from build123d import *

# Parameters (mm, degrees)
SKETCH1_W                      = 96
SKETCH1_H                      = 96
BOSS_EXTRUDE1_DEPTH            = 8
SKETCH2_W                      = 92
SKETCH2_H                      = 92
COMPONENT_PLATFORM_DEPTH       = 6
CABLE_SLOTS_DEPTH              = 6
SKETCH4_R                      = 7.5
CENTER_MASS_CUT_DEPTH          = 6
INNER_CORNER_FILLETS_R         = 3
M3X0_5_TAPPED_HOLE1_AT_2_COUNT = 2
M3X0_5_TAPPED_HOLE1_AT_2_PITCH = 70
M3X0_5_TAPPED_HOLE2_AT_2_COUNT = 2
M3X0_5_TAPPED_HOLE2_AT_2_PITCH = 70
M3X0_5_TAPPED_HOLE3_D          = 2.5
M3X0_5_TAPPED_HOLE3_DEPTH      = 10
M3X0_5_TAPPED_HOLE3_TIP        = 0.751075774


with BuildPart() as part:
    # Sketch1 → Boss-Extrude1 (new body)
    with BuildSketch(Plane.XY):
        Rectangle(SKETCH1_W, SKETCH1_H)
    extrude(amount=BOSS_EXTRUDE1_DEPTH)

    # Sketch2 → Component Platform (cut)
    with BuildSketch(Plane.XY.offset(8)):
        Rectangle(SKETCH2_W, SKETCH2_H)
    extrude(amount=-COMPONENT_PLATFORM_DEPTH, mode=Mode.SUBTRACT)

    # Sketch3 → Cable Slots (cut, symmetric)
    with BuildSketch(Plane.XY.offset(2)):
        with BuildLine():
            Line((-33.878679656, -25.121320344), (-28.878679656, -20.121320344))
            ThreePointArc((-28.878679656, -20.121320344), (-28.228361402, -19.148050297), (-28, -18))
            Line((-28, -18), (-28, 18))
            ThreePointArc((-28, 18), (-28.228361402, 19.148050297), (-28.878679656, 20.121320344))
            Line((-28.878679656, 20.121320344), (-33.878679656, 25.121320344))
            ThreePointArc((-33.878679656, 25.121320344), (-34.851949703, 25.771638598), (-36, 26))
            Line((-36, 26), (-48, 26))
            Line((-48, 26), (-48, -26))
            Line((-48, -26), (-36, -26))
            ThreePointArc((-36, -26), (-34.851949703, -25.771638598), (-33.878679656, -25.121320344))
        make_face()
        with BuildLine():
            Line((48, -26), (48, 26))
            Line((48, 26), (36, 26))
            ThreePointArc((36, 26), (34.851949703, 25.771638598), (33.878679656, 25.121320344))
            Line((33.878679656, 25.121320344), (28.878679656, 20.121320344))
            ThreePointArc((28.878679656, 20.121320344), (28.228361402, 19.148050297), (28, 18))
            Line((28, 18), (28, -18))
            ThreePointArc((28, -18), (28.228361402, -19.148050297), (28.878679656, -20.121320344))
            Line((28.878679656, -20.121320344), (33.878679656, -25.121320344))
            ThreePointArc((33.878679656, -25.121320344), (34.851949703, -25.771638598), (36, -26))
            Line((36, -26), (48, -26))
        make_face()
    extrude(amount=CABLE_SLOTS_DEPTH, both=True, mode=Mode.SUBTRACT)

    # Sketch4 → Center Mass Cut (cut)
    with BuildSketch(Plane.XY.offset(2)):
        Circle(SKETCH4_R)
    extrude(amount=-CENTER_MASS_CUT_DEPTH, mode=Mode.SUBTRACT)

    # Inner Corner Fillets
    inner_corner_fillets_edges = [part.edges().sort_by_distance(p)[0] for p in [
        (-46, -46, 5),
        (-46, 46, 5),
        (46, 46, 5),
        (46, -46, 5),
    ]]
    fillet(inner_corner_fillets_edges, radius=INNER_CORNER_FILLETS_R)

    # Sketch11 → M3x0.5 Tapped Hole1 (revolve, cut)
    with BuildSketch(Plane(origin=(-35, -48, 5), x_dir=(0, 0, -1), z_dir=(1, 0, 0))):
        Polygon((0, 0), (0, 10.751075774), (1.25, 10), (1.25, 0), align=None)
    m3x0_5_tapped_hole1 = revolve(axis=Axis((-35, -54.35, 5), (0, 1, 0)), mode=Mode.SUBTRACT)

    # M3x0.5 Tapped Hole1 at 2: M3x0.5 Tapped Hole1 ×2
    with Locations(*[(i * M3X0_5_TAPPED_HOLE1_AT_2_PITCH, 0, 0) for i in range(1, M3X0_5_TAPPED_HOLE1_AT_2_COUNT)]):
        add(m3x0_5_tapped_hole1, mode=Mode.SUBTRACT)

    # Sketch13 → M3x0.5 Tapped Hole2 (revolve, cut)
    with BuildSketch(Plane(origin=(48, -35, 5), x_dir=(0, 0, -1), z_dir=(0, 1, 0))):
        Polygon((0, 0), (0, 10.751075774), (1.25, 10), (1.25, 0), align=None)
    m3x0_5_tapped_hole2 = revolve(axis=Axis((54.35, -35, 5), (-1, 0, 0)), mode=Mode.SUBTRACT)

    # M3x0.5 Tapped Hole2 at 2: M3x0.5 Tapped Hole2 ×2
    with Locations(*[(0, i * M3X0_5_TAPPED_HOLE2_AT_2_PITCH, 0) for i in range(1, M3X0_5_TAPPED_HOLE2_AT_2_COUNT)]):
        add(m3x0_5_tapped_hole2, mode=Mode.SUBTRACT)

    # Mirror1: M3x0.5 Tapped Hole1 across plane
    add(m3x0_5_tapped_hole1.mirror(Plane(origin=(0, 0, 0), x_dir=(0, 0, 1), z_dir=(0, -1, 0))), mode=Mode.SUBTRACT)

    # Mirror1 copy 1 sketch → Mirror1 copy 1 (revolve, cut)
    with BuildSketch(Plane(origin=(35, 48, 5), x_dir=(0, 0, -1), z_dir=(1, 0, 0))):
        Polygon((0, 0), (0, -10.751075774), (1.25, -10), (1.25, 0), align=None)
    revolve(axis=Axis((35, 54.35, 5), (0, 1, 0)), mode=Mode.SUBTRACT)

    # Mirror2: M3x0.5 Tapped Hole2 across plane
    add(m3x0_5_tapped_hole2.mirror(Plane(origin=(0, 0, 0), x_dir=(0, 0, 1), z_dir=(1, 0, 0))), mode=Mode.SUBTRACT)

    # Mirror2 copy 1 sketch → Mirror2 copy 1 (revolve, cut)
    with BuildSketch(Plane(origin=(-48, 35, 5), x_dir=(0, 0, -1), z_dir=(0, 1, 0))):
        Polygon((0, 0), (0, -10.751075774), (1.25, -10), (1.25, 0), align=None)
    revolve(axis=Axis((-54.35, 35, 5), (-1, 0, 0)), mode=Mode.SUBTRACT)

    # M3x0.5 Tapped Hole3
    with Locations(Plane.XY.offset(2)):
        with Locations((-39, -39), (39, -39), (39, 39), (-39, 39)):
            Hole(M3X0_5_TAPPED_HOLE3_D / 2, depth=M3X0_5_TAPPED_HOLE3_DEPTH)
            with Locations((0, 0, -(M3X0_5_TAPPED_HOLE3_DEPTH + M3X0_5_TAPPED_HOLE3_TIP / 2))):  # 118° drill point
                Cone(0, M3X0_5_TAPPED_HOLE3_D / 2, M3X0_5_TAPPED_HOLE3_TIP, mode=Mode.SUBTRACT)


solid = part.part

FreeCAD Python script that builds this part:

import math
import FreeCAD as App
import Part
import Sketcher

V = App.Vector
Q = App.Units.Quantity


def edges_at(feature, points):
    """Names of the edges that pass closest to the given points."""
    edges = feature.Shape.Edges
    near = lambda p: min(range(len(edges)), key=lambda i: edges[i].distToShape(Part.Vertex(*p))[0])
    return sorted({f"Edge{near(p) + 1}" for p in points})


def add_polygon(sketch, points):
    """Adds a closed chain of lines whose ends are joined by coincident constraints."""
    first, n = sketch.GeometryCount, len(points)
    for a, b in zip(points, points[1:] + points[:1]):
        sketch.addGeometry(Part.LineSegment(App.Vector(*a, 0), App.Vector(*b, 0)), False)
    for i in range(n):
        sketch.addConstraint(Sketcher.Constraint("Coincident", first + i, 2, first + (i + 1) % n, 1))

doc = App.newDocument("Part")
body = doc.addObject("PartDesign::Body", "Body")

sketch1 = body.newObject("Sketcher::SketchObject", "Sketch")
sketch1.AttachmentSupport = (doc.getObject("XY_Plane"), [""])
sketch1.MapMode = "FlatFace"
add_polygon(sketch1, [(-48, 48), (-48, -48), (48, -48), (48, 48)])
sketch1.addConstraint([
    Sketcher.Constraint("Vertical", 0),
    Sketcher.Constraint("Horizontal", 1),
    Sketcher.Constraint("Vertical", 2),
    Sketcher.Constraint("Horizontal", 3),
    Sketcher.Constraint("Symmetric", 0, 2, 2, 2, -1, 1),
    Sketcher.Constraint("Equal", 3, 0),
    Sketcher.Constraint("DistanceX", 1, 1, 1, 2, 96.0),
])
pad1 = body.newObject("PartDesign::Pad", "Pad")
pad1.Profile = sketch1
pad1.Length = 8

sketch2 = body.newObject("Sketcher::SketchObject", "Sketch001")
sketch2.AttachmentSupport = (doc.getObject("XY_Plane"), [""])
sketch2.MapMode = "FlatFace"
sketch2.AttachmentOffset = App.Placement(V(0, 0, 8), App.Rotation())
add_polygon(sketch2, [(-46, 46), (-46, -46), (46, -46), (46, 46)])
sketch2.addConstraint([
    Sketcher.Constraint("Vertical", 0),
    Sketcher.Constraint("Horizontal", 1),
    Sketcher.Constraint("Vertical", 2),
    Sketcher.Constraint("Horizontal", 3),
    Sketcher.Constraint("Symmetric", 0, 2, 2, 2, -1, 1),
    Sketcher.Constraint("Equal", 3, 0),
    Sketcher.Constraint("DistanceX", 1, 1, 1, 2, 92.0),
])
pocket1 = body.newObject("PartDesign::Pocket", "Pocket")
pocket1.Profile = sketch2
pocket1.Length = 6

sketch3 = body.newObject("Sketcher::SketchObject", "Sketch002")
sketch3.AttachmentSupport = (doc.getObject("XY_Plane"), [""])
sketch3.MapMode = "FlatFace"
sketch3.AttachmentOffset = App.Placement(V(0, 0, 2), App.Rotation())
sketch3.addGeometry([
    Part.LineSegment(V(-33.9, -25.1, 0), V(-28.9, -20.1, 0)),
    Part.ArcOfCircle(Part.Circle(V(-31, -18, 0), V(0, 0, 1), 3), math.radians(-45), math.radians(0)),
    Part.LineSegment(V(-28, -18, 0), V(-28, 18, 0)),
    Part.ArcOfCircle(Part.Circle(V(-31, 18, 0), V(0, 0, 1), 3), math.radians(0), math.radians(45)),
    Part.LineSegment(V(-28.9, 20.1, 0), V(-33.9, 25.1, 0)),
    Part.ArcOfCircle(Part.Circle(V(-36, 23, 0), V(0, 0, 1), 3), math.radians(45), math.radians(90)),
    Part.LineSegment(V(-36, 26, 0), V(-48, 26, 0)),
    Part.LineSegment(V(-48, 26, 0), V(-48, -26, 0)),
    Part.LineSegment(V(-48, -26, 0), V(-36, -26, 0)),
    Part.ArcOfCircle(Part.Circle(V(-36, -23, 0), V(0, 0, 1), 3), math.radians(-90), math.radians(-45)),
    Part.LineSegment(V(48, -26, 0), V(48, 26, 0)),
    Part.LineSegment(V(48, 26, 0), V(36, 26, 0)),
    Part.ArcOfCircle(Part.Circle(V(36, 23, 0), V(0, 0, 1), 3), math.radians(90), math.radians(135)),
    Part.LineSegment(V(33.9, 25.1, 0), V(28.9, 20.1, 0)),
    Part.ArcOfCircle(Part.Circle(V(31, 18, 0), V(0, 0, 1), 3), math.radians(135), math.radians(180)),
    Part.LineSegment(V(28, 18, 0), V(28, -18, 0)),
    Part.ArcOfCircle(Part.Circle(V(31, -18, 0), V(0, 0, 1), 3), math.radians(180), math.radians(225)),
    Part.LineSegment(V(28.9, -20.1, 0), V(33.9, -25.1, 0)),
    Part.ArcOfCircle(Part.Circle(V(36, -23, 0), V(0, 0, 1), 3), math.radians(-135), math.radians(-90)),
    Part.LineSegment(V(36, -26, 0), V(48, -26, 0)),
], False)
sketch3.addConstraint([
    Sketcher.Constraint("Tangent", 0, 2, 1, 1),
    Sketcher.Constraint("Tangent", 1, 2, 2, 1),
    Sketcher.Constraint("Tangent", 2, 2, 3, 1),
    Sketcher.Constraint("Tangent", 3, 2, 4, 1),
    Sketcher.Constraint("Tangent", 4, 2, 5, 1),
    Sketcher.Constraint("Tangent", 5, 2, 6, 1),
    Sketcher.Constraint("Coincident", 6, 2, 7, 1),
    Sketcher.Constraint("Coincident", 7, 2, 8, 1),
    Sketcher.Constraint("Tangent", 8, 2, 9, 1),
    Sketcher.Constraint("Tangent", 9, 2, 0, 1),
    Sketcher.Constraint("Coincident", 10, 2, 11, 1),
    Sketcher.Constraint("Tangent", 11, 2, 12, 1),
    Sketcher.Constraint("Tangent", 12, 2, 13, 1),
    Sketcher.Constraint("Tangent", 13, 2, 14, 1),
    Sketcher.Constraint("Tangent", 14, 2, 15, 1),
    Sketcher.Constraint("Tangent", 15, 2, 16, 1),
    Sketcher.Constraint("Tangent", 16, 2, 17, 1),
    Sketcher.Constraint("Tangent", 17, 2, 18, 1),
    Sketcher.Constraint("Tangent", 18, 2, 19, 1),
    Sketcher.Constraint("Coincident", 19, 2, 10, 1),
    Sketcher.Constraint("Vertical", 2),
    Sketcher.Constraint("Horizontal", 6),
    Sketcher.Constraint("Vertical", 7),
    Sketcher.Constraint("Horizontal", 8),
    Sketcher.Constraint("Vertical", 10),
    Sketcher.Constraint("Horizontal", 11),
    Sketcher.Constraint("Vertical", 15),
    Sketcher.Constraint("Horizontal", 19),
    Sketcher.Constraint("Equal", 1, 3),
    Sketcher.Constraint("Equal", 3, 5),
    Sketcher.Constraint("Equal", 5, 9),
    Sketcher.Constraint("Equal", 9, 12),
    Sketcher.Constraint("Equal", 12, 14),
    Sketcher.Constraint("Equal", 14, 16),
    Sketcher.Constraint("Equal", 16, 18),
    Sketcher.Constraint("Symmetric", 9, 3, 12, 3, -1, 1),
    Sketcher.Constraint("Symmetric", 1, 3, 14, 3, -1, 1),
    Sketcher.Constraint("Symmetric", 5, 3, 18, 3, -1, 1),
    Sketcher.Constraint("Symmetric", 5, 3, 12, 3, -2),
    Sketcher.Constraint("Perpendicular", 0, 4),
    Sketcher.Constraint("Perpendicular", 13, 17),
    Sketcher.Constraint("Horizontal", 3, 3, 14, 3),
    Sketcher.Constraint("Equal", 8, 11),
    Sketcher.Constraint("Radius", 1, 3.0),
    Sketcher.Constraint("DistanceX", 6, 2, 6, 1, 12.0),
    Sketcher.Constraint("DistanceY", 2, 1, 2, 2, 36.0),
    Sketcher.Constraint("DistanceY", 7, 2, 7, 1, 52.0),
    Sketcher.Constraint("DistanceX", 1, 3, -1, 1, 31.0),
])
pocket2 = body.newObject("PartDesign::Pocket", "Pocket001")
pocket2.Profile = sketch3
pocket2.Length = 12
pocket2.Midplane = True

sketch4 = body.newObject("Sketcher::SketchObject", "Sketch003")
sketch4.AttachmentSupport = (doc.getObject("XY_Plane"), [""])
sketch4.MapMode = "FlatFace"
sketch4.AttachmentOffset = App.Placement(V(0, 0, 2), App.Rotation())
sketch4.addGeometry(Part.Circle(V(0, 0, 0), V(0, 0, 1), 8), False)
sketch4.addConstraint([
    Sketcher.Constraint("Coincident", 0, 3, -1, 1),
    Sketcher.Constraint("Diameter", 0, 15.0),
])
pocket3 = body.newObject("PartDesign::Pocket", "Pocket002")
pocket3.Profile = sketch4
pocket3.Length = 6
doc.recompute()

fillet = body.newObject("PartDesign::Fillet", "Fillet")
fillet.Base = (pocket3, edges_at(pocket3, [
    (-46, -46, 5),
    (-46, 46, 5),
    (46, 46, 5),
    (46, -46, 5),
]))
fillet.Radius = 3

sketch5 = body.newObject("Sketcher::SketchObject", "Sketch004")
sketch5.AttachmentSupport = (doc.getObject("YZ_Plane"), [""])
sketch5.MapMode = "FlatFace"
sketch5.AttachmentOffset = App.Placement(V(0, 0, -35), App.Rotation())
add_polygon(sketch5, [(-37.2, 5), (-48, 5), (-48, 3.8), (-38, 3.8)])
sketch5.addGeometry(Part.LineSegment(V(-48, 5, 0), V(-37.2, 5, 0)), True)
sketch5.addConstraint([
    Sketcher.Constraint("Horizontal", 0),
    Sketcher.Constraint("Vertical", 1),
    Sketcher.Constraint("Horizontal", 2),
    Sketcher.Constraint("Horizontal", 4),
    Sketcher.Constraint("Coincident", 4, 1, 0, 2),
    Sketcher.Constraint("Equal", 0, 4),
    Sketcher.Constraint("DistanceX", 2, 1, 2, 2, 10.0),
    Sketcher.Constraint("Angle", 3, Q("59 deg")),
    Sketcher.Constraint("DistanceX", 0, 2, -1, 1, 48.0),
    Sketcher.Constraint("DistanceY", -1, 1, 0, 2, 5.0),
    Sketcher.Constraint("DistanceY", 1, 2, 1, 1, 1.25),
])
groove = body.newObject("PartDesign::Groove", "Groove")
groove.Profile = sketch5
groove.ReferenceAxis = (sketch5, ["Axis0"])
groove.Angle = 360
doc.recompute()

linearpattern = body.newObject("PartDesign::LinearPattern", "LinearPattern")
linearpattern.Originals = [groove]
linearpattern.Direction = (doc.getObject("X_Axis"), [""])
linearpattern.Mode = "offset"
linearpattern.Offset = 70
linearpattern.Occurrences = 2
body.Tip = linearpattern

sketch6 = body.newObject("Sketcher::SketchObject", "Sketch005")
sketch6.AttachmentSupport = (doc.getObject("XZ_Plane"), [""])
sketch6.MapMode = "FlatFace"
sketch6.AttachmentOffset = App.Placement(V(0, 0, 35), App.Rotation())
add_polygon(sketch6, [(37.2, 5), (48, 5), (48, 3.8), (38, 3.8)])
sketch6.addGeometry(Part.LineSegment(V(48, 5, 0), V(37.2, 5, 0)), True)
sketch6.addConstraint([
    Sketcher.Constraint("Horizontal", 0),
    Sketcher.Constraint("Vertical", 1),
    Sketcher.Constraint("Horizontal", 2),
    Sketcher.Constraint("Horizontal", 4),
    Sketcher.Constraint("Coincident", 4, 1, 0, 2),
    Sketcher.Constraint("Equal", 0, 4),
    Sketcher.Constraint("DistanceX", 2, 2, 2, 1, 10.0),
    Sketcher.Constraint("Angle", 3, Q("121 deg")),
    Sketcher.Constraint("DistanceX", -1, 1, 0, 2, 48.0),
    Sketcher.Constraint("DistanceY", -1, 1, 0, 2, 5.0),
    Sketcher.Constraint("DistanceY", 1, 2, 1, 1, 1.25),
])
groove2 = body.newObject("PartDesign::Groove", "Groove001")
groove2.Profile = sketch6
groove2.ReferenceAxis = (sketch6, ["Axis0"])
groove2.Angle = 360
doc.recompute()

linearpattern2 = body.newObject("PartDesign::LinearPattern", "LinearPattern001")
linearpattern2.Originals = [groove2]
linearpattern2.Direction = (doc.getObject("Y_Axis"), [""])
linearpattern2.Mode = "offset"
linearpattern2.Offset = 70
linearpattern2.Occurrences = 2
body.Tip = linearpattern2
doc.recompute()

mirrored = body.newObject("PartDesign::Mirrored", "Mirrored")
mirrored.Originals = [groove]
mirrored.MirrorPlane = (doc.getObject("XZ_Plane"), [""])
body.Tip = mirrored

sketch7 = body.newObject("Sketcher::SketchObject", "Sketch006")
sketch7.AttachmentSupport = (doc.getObject("YZ_Plane"), [""])
sketch7.MapMode = "FlatFace"
sketch7.AttachmentOffset = App.Placement(V(0, 0, 35), App.Rotation())
add_polygon(sketch7, [(48, 5), (37.2, 5), (38, 3.8), (48, 3.8)])
sketch7.addGeometry(Part.LineSegment(V(37.2, 5, 0), V(48, 5, 0)), True)
sketch7.addConstraint([
    Sketcher.Constraint("Horizontal", 0),
    Sketcher.Constraint("Horizontal", 2),
    Sketcher.Constraint("Vertical", 3),
    Sketcher.Constraint("Horizontal", 4),
    Sketcher.Constraint("Coincident", 4, 1, 0, 2),
    Sketcher.Constraint("Vertical", 2, 2, 4, 2),
    Sketcher.Constraint("DistanceX", 2, 1, 2, 2, 10.0),
    Sketcher.Constraint("Angle", 1, Q("-59 deg")),
    Sketcher.Constraint("DistanceY", -1, 1, 0, 2, 5.0),
    Sketcher.Constraint("DistanceX", -1, 1, 1, 2, 38.0),
    Sketcher.Constraint("DistanceY", 3, 1, 3, 2, 1.25),
])
groove3 = body.newObject("PartDesign::Groove", "Groove002")
groove3.Profile = sketch7
groove3.ReferenceAxis = (sketch7, ["Axis0"])
groove3.Angle = 360
doc.recompute()

mirrored2 = body.newObject("PartDesign::Mirrored", "Mirrored001")
mirrored2.Originals = [groove2]
mirrored2.MirrorPlane = (doc.getObject("YZ_Plane"), [""])
body.Tip = mirrored2

sketch8 = body.newObject("Sketcher::SketchObject", "Sketch007")
sketch8.AttachmentSupport = (doc.getObject("XZ_Plane"), [""])
sketch8.MapMode = "FlatFace"
sketch8.AttachmentOffset = App.Placement(V(0, 0, -35), App.Rotation())
add_polygon(sketch8, [(-48, 5), (-37.2, 5), (-38, 3.8), (-48, 3.8)])
sketch8.addGeometry(Part.LineSegment(V(-37.2, 5, 0), V(-48, 5, 0)), True)
sketch8.addConstraint([
    Sketcher.Constraint("Horizontal", 0),
    Sketcher.Constraint("Horizontal", 2),
    Sketcher.Constraint("Vertical", 3),
    Sketcher.Constraint("Horizontal", 4),
    Sketcher.Constraint("Coincident", 4, 1, 0, 2),
    Sketcher.Constraint("Vertical", 2, 2, 4, 2),
    Sketcher.Constraint("DistanceX", 2, 2, 2, 1, 10.0),
    Sketcher.Constraint("Angle", 1, Q("-121 deg")),
    Sketcher.Constraint("DistanceY", -1, 1, 0, 2, 5.0),
    Sketcher.Constraint("DistanceX", 1, 2, -1, 1, 38.0),
    Sketcher.Constraint("DistanceY", 3, 1, 3, 2, 1.25),
])
groove4 = body.newObject("PartDesign::Groove", "Groove003")
groove4.Profile = sketch8
groove4.ReferenceAxis = (sketch8, ["Axis0"])
groove4.Angle = 360

sketch9 = body.newObject("Sketcher::SketchObject", "Sketch008")
sketch9.AttachmentSupport = (doc.getObject("XY_Plane"), [""])
sketch9.MapMode = "FlatFace"
sketch9.AttachmentOffset = App.Placement(V(0, 0, 2), App.Rotation())
sketch9.addGeometry([
    Part.Circle(V(-39, -39, 0), V(0, 0, 1), 1.2),
    Part.Circle(V(39, -39, 0), V(0, 0, 1), 1.2),
    Part.Circle(V(39, 39, 0), V(0, 0, 1), 1.2),
    Part.Circle(V(-39, 39, 0), V(0, 0, 1), 1.2),
], False)
sketch9.addConstraint([
    Sketcher.Constraint("Equal", 0, 1),
    Sketcher.Constraint("Equal", 1, 2),
    Sketcher.Constraint("Equal", 2, 3),
    Sketcher.Constraint("Symmetric", 0, 3, 2, 3, -1, 1),
    Sketcher.Constraint("Symmetric", 1, 3, 3, 3, -1, 1),
    Sketcher.Constraint("Symmetric", 0, 3, 1, 3, -2),
    Sketcher.Constraint("Diameter", 0, 2.5),
    Sketcher.Constraint("DistanceX", 0, 3, -1, 1, 39.0),
    Sketcher.Constraint("DistanceY", 0, 3, -1, 1, 39.0),
])
doc.recompute()
hole = body.newObject("PartDesign::Hole", "Hole")
hole.Profile = sketch9
hole.ThreadType = "None"
hole.Diameter = 2.5
hole.DepthType = "Dimension"
hole.Depth = 10
hole.DrillPoint = "Angled"
hole.DrillPointAngle = 118

doc.recompute()
